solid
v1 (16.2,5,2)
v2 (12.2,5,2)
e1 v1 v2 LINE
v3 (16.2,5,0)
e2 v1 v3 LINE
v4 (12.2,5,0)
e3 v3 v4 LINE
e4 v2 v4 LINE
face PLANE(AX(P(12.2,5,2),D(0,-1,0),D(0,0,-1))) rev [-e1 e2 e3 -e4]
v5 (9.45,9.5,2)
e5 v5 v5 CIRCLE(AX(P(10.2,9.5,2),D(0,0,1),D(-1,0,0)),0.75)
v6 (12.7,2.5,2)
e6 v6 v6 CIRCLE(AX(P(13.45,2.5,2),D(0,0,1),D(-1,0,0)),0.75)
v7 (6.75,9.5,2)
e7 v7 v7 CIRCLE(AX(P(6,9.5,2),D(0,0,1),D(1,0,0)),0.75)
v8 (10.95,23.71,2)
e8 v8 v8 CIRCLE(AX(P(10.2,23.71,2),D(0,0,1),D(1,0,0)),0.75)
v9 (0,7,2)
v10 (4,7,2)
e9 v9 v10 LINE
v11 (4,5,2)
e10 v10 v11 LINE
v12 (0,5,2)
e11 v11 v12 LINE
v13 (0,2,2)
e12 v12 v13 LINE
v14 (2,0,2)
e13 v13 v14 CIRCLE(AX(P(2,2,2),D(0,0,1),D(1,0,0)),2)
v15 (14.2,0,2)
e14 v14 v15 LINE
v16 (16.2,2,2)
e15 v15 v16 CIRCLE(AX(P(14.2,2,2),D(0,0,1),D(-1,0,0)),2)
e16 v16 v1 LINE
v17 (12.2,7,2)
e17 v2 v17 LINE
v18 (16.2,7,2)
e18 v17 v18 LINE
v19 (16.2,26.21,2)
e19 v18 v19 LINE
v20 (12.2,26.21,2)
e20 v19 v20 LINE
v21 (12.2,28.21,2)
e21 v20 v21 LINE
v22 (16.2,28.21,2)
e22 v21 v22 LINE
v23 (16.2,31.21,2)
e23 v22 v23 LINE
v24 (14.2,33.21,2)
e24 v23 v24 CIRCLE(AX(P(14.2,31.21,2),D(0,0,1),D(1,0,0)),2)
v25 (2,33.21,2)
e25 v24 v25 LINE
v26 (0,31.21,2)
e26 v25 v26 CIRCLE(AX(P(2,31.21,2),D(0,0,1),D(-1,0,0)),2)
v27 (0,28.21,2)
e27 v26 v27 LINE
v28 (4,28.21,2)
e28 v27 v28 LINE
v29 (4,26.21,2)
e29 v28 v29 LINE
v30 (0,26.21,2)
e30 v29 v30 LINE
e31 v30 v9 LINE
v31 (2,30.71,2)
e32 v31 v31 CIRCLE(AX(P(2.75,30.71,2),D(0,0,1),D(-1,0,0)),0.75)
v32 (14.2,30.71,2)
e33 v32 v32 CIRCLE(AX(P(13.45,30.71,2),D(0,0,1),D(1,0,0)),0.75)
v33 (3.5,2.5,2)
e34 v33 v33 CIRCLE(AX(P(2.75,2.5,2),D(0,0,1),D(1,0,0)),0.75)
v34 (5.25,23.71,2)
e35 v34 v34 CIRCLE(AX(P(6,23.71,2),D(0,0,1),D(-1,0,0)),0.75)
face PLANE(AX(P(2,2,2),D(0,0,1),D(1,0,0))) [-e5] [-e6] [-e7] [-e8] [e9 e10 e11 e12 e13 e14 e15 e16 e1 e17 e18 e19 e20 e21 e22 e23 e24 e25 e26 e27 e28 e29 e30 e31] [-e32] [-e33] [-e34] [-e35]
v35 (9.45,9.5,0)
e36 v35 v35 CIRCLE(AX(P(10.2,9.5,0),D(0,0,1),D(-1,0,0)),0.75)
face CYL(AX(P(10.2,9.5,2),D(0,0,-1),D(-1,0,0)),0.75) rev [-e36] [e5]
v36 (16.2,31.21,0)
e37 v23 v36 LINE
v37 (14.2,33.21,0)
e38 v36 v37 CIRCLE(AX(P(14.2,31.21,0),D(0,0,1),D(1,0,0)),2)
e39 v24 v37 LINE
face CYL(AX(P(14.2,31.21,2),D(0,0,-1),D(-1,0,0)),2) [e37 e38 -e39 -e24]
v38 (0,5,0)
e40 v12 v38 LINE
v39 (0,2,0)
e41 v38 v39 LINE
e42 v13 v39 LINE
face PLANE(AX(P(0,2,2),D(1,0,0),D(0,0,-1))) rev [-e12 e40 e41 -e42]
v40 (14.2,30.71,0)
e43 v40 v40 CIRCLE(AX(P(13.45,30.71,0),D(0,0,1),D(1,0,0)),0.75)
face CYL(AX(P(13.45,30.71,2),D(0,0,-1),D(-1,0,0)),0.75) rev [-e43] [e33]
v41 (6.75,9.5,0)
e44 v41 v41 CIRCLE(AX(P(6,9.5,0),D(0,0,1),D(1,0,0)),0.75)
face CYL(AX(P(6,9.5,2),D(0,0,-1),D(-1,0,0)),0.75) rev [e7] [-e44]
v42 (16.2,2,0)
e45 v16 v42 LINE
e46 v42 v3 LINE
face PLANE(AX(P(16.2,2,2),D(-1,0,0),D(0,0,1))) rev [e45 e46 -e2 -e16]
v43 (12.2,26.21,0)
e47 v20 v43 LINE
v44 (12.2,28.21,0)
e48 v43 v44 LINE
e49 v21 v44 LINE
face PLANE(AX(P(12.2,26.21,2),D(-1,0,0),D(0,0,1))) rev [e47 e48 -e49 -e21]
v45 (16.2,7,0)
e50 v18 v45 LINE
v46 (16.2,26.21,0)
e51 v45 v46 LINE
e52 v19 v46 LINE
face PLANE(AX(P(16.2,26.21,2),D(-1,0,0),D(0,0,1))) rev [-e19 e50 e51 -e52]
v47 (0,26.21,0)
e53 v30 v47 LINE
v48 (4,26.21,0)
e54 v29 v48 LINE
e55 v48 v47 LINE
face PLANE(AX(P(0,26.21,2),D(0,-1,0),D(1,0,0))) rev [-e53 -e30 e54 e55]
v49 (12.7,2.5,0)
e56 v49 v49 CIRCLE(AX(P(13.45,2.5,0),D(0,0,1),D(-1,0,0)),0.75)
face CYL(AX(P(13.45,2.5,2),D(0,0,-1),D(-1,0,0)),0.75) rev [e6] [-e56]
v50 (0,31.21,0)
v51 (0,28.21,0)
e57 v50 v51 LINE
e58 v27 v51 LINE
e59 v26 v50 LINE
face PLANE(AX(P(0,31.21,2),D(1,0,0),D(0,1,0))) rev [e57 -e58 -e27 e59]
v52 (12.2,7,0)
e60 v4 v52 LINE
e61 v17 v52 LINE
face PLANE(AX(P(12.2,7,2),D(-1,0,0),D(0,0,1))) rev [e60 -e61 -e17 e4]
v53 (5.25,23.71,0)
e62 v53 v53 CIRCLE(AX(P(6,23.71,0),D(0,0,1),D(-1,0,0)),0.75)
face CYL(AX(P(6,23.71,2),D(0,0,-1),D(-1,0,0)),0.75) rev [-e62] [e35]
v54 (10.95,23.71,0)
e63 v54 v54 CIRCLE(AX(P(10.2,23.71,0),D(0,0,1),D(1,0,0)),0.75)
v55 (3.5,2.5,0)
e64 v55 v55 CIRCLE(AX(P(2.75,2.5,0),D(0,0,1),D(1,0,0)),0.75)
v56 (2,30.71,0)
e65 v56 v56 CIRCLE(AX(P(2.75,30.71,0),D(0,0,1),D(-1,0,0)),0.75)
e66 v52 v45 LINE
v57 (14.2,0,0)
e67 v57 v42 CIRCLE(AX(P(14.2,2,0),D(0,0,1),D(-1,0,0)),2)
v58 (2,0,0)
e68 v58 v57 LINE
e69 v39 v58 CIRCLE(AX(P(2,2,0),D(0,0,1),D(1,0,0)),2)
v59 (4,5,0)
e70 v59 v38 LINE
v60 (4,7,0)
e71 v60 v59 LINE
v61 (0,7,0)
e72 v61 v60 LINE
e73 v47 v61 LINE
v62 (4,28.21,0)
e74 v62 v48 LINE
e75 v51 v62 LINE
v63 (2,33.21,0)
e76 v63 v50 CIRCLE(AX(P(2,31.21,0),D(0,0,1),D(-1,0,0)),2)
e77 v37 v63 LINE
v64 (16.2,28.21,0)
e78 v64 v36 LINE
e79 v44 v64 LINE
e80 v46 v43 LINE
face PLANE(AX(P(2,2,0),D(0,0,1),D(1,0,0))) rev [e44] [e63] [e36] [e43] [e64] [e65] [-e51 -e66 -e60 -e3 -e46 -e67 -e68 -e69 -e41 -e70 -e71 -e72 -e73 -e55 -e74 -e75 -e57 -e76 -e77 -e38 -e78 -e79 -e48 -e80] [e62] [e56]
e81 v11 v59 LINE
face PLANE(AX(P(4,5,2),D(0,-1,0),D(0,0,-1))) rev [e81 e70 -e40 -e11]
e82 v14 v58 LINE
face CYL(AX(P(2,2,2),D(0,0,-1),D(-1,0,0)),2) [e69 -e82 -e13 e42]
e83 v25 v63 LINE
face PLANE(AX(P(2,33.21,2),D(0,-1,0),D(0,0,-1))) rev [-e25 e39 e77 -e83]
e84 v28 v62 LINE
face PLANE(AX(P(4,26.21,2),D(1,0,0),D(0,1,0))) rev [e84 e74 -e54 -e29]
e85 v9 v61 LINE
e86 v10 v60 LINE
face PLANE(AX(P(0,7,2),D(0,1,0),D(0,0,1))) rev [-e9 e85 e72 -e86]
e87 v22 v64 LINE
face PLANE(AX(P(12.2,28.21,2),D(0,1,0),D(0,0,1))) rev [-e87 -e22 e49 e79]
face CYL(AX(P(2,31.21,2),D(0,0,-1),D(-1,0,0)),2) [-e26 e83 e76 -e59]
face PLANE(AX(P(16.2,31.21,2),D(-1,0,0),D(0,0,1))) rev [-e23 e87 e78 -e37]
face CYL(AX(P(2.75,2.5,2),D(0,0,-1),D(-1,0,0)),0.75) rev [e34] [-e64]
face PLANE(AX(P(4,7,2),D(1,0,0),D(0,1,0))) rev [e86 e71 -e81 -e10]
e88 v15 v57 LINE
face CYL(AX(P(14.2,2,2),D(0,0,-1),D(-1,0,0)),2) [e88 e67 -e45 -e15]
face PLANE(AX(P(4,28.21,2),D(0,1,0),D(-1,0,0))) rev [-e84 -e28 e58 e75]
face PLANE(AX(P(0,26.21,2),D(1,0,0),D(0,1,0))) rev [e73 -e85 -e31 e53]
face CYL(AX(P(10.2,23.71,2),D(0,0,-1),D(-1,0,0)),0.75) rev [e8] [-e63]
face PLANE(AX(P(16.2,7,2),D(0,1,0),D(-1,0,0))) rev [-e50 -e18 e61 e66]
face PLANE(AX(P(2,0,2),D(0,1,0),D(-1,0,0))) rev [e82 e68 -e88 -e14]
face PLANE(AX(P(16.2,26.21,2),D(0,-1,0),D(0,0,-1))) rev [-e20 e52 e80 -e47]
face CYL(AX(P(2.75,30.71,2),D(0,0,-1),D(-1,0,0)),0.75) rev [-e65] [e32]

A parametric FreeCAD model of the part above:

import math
import FreeCAD as App
import Part
import Sketcher

doc = App.newDocument("Part")
body = doc.addObject("PartDesign::Body", "Body")

sketch1 = doc.addObject("Sketcher::SketchObject", "Sketch")
body.addObject(sketch1)
sketch1.AttachmentSupport = (doc.XY_Plane, [""])
sketch1.MapMode = "FlatFace"
sketch1.addGeometry(Part.LineSegment(App.Vector(0, 26.21, 0), App.Vector(0, 7, 0)), False)
sketch1.addGeometry(Part.LineSegment(App.Vector(0, 7, 0), App.Vector(4, 7, 0)), False)
sketch1.addGeometry(Part.LineSegment(App.Vector(4, 7, 0), App.Vector(4, 5, 0)), False)
sketch1.addGeometry(Part.LineSegment(App.Vector(4, 5, 0), App.Vector(0, 5, 0)), False)
sketch1.addGeometry(Part.LineSegment(App.Vector(0, 5, 0), App.Vector(0, 2, 0)), False)
sketch1.addGeometry(Part.ArcOfCircle(Part.Circle(App.Vector(2, 2, 0), App.Vector(0, 0, 1), 2), math.radians(-180), math.radians(-90)), False)
sketch1.addGeometry(Part.LineSegment(App.Vector(2, 0, 0), App.Vector(14.2, 0, 0)), False)
sketch1.addGeometry(Part.ArcOfCircle(Part.Circle(App.Vector(14.2, 2, 0), App.Vector(0, 0, 1), 2), math.radians(-90), math.radians(0)), False)
sketch1.addGeometry(Part.LineSegment(App.Vector(16.2, 2, 0), App.Vector(16.2, 5, 0)), False)
sketch1.addGeometry(Part.LineSegment(App.Vector(16.2, 5, 0), App.Vector(12.2, 5, 0)), False)
sketch1.addGeometry(Part.LineSegment(App.Vector(12.2, 5, 0), App.Vector(12.2, 7, 0)), False)
sketch1.addGeometry(Part.LineSegment(App.Vector(12.2, 7, 0), App.Vector(16.2, 7, 0)), False)
sketch1.addGeometry(Part.LineSegment(App.Vector(16.2, 7, 0), App.Vector(16.2, 26.21, 0)), False)
sketch1.addGeometry(Part.LineSegment(App.Vector(16.2, 26.21, 0), App.Vector(12.2, 26.21, 0)), False)
sketch1.addGeometry(Part.LineSegment(App.Vector(12.2, 26.21, 0), App.Vector(12.2, 28.21, 0)), False)
sketch1.addGeometry(Part.LineSegment(App.Vector(12.2, 28.21, 0), App.Vector(16.2, 28.21, 0)), False)
sketch1.addGeometry(Part.LineSegment(App.Vector(16.2, 28.21, 0), App.Vector(16.2, 31.21, 0)), False)
sketch1.addGeometry(Part.ArcOfCircle(Part.Circle(App.Vector(14.2, 31.21, 0), App.Vector(0, 0, 1), 2), math.radians(0), math.radians(90)), False)
sketch1.addGeometry(Part.LineSegment(App.Vector(14.2, 33.21, 0), App.Vector(2, 33.21, 0)), False)
sketch1.addGeometry(Part.ArcOfCircle(Part.Circle(App.Vector(2, 31.21, 0), App.Vector(0, 0, 1), 2), math.radians(90), math.radians(180)), False)
sketch1.addGeometry(Part.LineSegment(App.Vector(0, 31.21, 0), App.Vector(0, 28.21, 0)), False)
sketch1.addGeometry(Part.LineSegment(App.Vector(0, 28.21, 0), App.Vector(4, 28.21, 0)), False)
sketch1.addGeometry(Part.LineSegment(App.Vector(4, 28.21, 0), App.Vector(4, 26.21, 0)), False)
sketch1.addGeometry(Part.LineSegment(App.Vector(4, 26.21, 0), App.Vector(0, 26.21, 0)), False)
sketch1.addGeometry(Part.Circle(App.Vector(2.75, 2.5, 0), App.Vector(0, 0, 1), 0.75), False)
sketch1.addGeometry(Part.Circle(App.Vector(6, 9.5, 0), App.Vector(0, 0, 1), 0.75), False)
sketch1.addGeometry(Part.Circle(App.Vector(13.45, 2.5, 0), App.Vector(0, 0, 1), 0.75), False)
sketch1.addGeometry(Part.Circle(App.Vector(10.2, 9.5, 0), App.Vector(0, 0, 1), 0.75), False)
sketch1.addGeometry(Part.Circle(App.Vector(6, 23.71, 0), App.Vector(0, 0, 1), 0.75), False)
sketch1.addGeometry(Part.Circle(App.Vector(2.75, 30.71, 0), App.Vector(0, 0, 1), 0.75), False)
sketch1.addGeometry(Part.Circle(App.Vector(10.2, 23.71, 0), App.Vector(0, 0, 1), 0.75), False)
sketch1.addGeometry(Part.Circle(App.Vector(13.45, 30.71, 0), App.Vector(0, 0, 1), 0.75), False)
sketch1.addConstraint(Sketcher.Constraint("Coincident", 0, 2, 1, 1))
sketch1.addConstraint(Sketcher.Constraint("Coincident", 1, 2, 2, 1))
sketch1.addConstraint(Sketcher.Constraint("Coincident", 2, 2, 3, 1))
sketch1.addConstraint(Sketcher.Constraint("Coincident", 3, 2, 4, 1))
sketch1.addConstraint(Sketcher.Constraint("Tangent", 4, 2, 5, 1))
sketch1.addConstraint(Sketcher.Constraint("Tangent", 5, 2, 6, 1))
sketch1.addConstraint(Sketcher.Constraint("Tangent", 6, 2, 7, 1))
sketch1.addConstraint(Sketcher.Constraint("Tangent", 7, 2, 8, 1))
sketch1.addConstraint(Sketcher.Constraint("Coincident", 8, 2, 9, 1))
sketch1.addConstraint(Sketcher.Constraint("Coincident", 9, 2, 10, 1))
sketch1.addConstraint(Sketcher.Constraint("Coincident", 10, 2, 11, 1))
sketch1.addConstraint(Sketcher.Constraint("Coincident", 11, 2, 12, 1))
sketch1.addConstraint(Sketcher.Constraint("Coincident", 12, 2, 13, 1))
sketch1.addConstraint(Sketcher.Constraint("Coincident", 13, 2, 14, 1))
sketch1.addConstraint(Sketcher.Constraint("Coincident", 14, 2, 15, 1))
sketch1.addConstraint(Sketcher.Constraint("Coincident", 15, 2, 16, 1))
sketch1.addConstraint(Sketcher.Constraint("Tangent", 16, 2, 17, 1))
sketch1.addConstraint(Sketcher.Constraint("Tangent", 17, 2, 18, 1))
sketch1.addConstraint(Sketcher.Constraint("Tangent", 18, 2, 19, 1))
sketch1.addConstraint(Sketcher.Constraint("Tangent", 19, 2, 20, 1))
sketch1.addConstraint(Sketcher.Constraint("Coincident", 20, 2, 21, 1))
sketch1.addConstraint(Sketcher.Constraint("Coincident", 21, 2, 22, 1))
sketch1.addConstraint(Sketcher.Constraint("Coincident", 22, 2, 23, 1))
sketch1.addConstraint(Sketcher.Constraint("Coincident", 23, 2, 0, 1))
sketch1.addConstraint(Sketcher.Constraint("Vertical", 0))
sketch1.addConstraint(Sketcher.Constraint("Horizontal", 1))
sketch1.addConstraint(Sketcher.Constraint("Vertical", 2))
sketch1.addConstraint(Sketcher.Constraint("Horizontal", 3))
sketch1.addConstraint(Sketcher.Constraint("Vertical", 4))
sketch1.addConstraint(Sketcher.Constraint("Horizontal", 6))
sketch1.addConstraint(Sketcher.Constraint("Vertical", 8))
sketch1.addConstraint(Sketcher.Constraint("Horizontal", 9))
sketch1.addConstraint(Sketcher.Constraint("Vertical", 10))
sketch1.addConstraint(Sketcher.Constraint("Horizontal", 11))
sketch1.addConstraint(Sketcher.Constraint("Vertical", 12))
sketch1.addConstraint(Sketcher.Constraint("Horizontal", 13))
sketch1.addConstraint(Sketcher.Constraint("Vertical", 14))
sketch1.addConstraint(Sketcher.Constraint("Horizontal", 15))
sketch1.addConstraint(Sketcher.Constraint("Vertical", 16))
sketch1.addConstraint(Sketcher.Constraint("Horizontal", 18))
sketch1.addConstraint(Sketcher.Constraint("Vertical", 20))
sketch1.addConstraint(Sketcher.Constraint("Horizontal", 21))
sketch1.addConstraint(Sketcher.Constraint("Vertical", 22))
sketch1.addConstraint(Sketcher.Constraint("Horizontal", 23))
sketch1.addConstraint(Sketcher.Constraint("Equal", 5, 7))
sketch1.addConstraint(Sketcher.Constraint("Equal", 7, 17))
sketch1.addConstraint(Sketcher.Constraint("Equal", 17, 19))
sketch1.addConstraint(Sketcher.Constraint("Equal", 24, 25))
sketch1.addConstraint(Sketcher.Constraint("Equal", 25, 26))
sketch1.addConstraint(Sketcher.Constraint("Equal", 26, 27))
sketch1.addConstraint(Sketcher.Constraint("Equal", 27, 28))
sketch1.addConstraint(Sketcher.Constraint("Equal", 28, 29))
sketch1.addConstraint(Sketcher.Constraint("Equal", 29, 30))
sketch1.addConstraint(Sketcher.Constraint("Equal", 30, 31))
sketch1.addConstraint(Sketcher.Constraint("PointOnObject", 0, 2, -2))
sketch1.addConstraint(Sketcher.Constraint("PointOnObject", 3, 2, -2))
sketch1.addConstraint(Sketcher.Constraint("PointOnObject", 5, 2, -1))
sketch1.addConstraint(Sketcher.Constraint("PointOnObject", 19, 2, -2))
sketch1.addConstraint(Sketcher.Constraint("Horizontal", 24, 3, 26, 3))
sketch1.addConstraint(Sketcher.Constraint("Horizontal", 25, 3, 27, 3))
sketch1.addConstraint(Sketcher.Constraint("Horizontal", 28, 3, 30, 3))
sketch1.addConstraint(Sketcher.Constraint("Horizontal", 29, 3, 31, 3))
sketch1.addConstraint(Sketcher.Constraint("Horizontal", 3, 2, 8, 2))
sketch1.addConstraint(Sketcher.Constraint("Horizontal", 1, 2, 10, 2))
sketch1.addConstraint(Sketcher.Constraint("Horizontal", 15, 2, 20, 2))
sketch1.addConstraint(Sketcher.Constraint("Horizontal", 13, 2, 22, 2))
sketch1.addConstraint(Sketcher.Constraint("Vertical", 7, 3, 17, 3))
sketch1.addConstraint(Sketcher.Constraint("Vertical", 25, 3, 28, 3))
sketch1.addConstraint(Sketcher.Constraint("Vertical", 24, 3, 29, 3))
sketch1.addConstraint(Sketcher.Constraint("Vertical", 27, 3, 30, 3))
sketch1.addConstraint(Sketcher.Constraint("Vertical", 26, 3, 31, 3))
sketch1.addConstraint(Sketcher.Constraint("Vertical", 8, 2, 11, 2))
sketch1.addConstraint(Sketcher.Constraint("Vertical", 10, 2, 13, 2))
sketch1.addConstraint(Sketcher.Constraint("Vertical", 2, 2, 21, 2))
sketch1.addConstraint(Sketcher.Constraint("Equal", 3, 9))
sketch1.addConstraint(Sketcher.Constraint("Equal", 10, 14))
sketch1.addConstraint(Sketcher.Constraint("Equal", 8, 16))
sketch1.addConstraint(Sketcher.Constraint("Radius", 5, 2.0))
sketch1.addConstraint(Sketcher.Constraint("Diameter", 24, 1.5))
sketch1.addConstraint(Sketcher.Constraint("DistanceX", 1, 1, 1, 2, 4.0))
sketch1.addConstraint(Sketcher.Constraint("DistanceY", 2, 2, 2, 1, 2.0))
sketch1.addConstraint(Sketcher.Constraint("DistanceY", 4, 2, 4, 1, 3.0))
sketch1.addConstraint(Sketcher.Constraint("DistanceX", 6, 1, 6, 2, 12.2))
sketch1.addConstraint(Sketcher.Constraint("DistanceX", -1, 1, 25, 3, 6.0))
sketch1.addConstraint(Sketcher.Constraint("DistanceY", 24, 3, 25, 3, 7.0))
sketch1.addConstraint(Sketcher.Constraint("DistanceX", 27, 3, 7, 3, 4.0))
sketch1.addConstraint(Sketcher.Constraint("DistanceY", 28, 3, 29, 3, 7.0))
sketch1.addConstraint(Sketcher.Constraint("DistanceY", 0, 2, 0, 1, 19.21))
sketch1.addConstraint(Sketcher.Constraint("DistanceY", -1, 1, 24, 3, 2.5))
sketch1.addConstraint(Sketcher.Constraint("DistanceX", 24, 3, 26, 3, 10.7))
sketch1.addConstraint(Sketcher.Constraint("DistanceY", 28, 3, 19, 3, 7.5))
sketch1.addConstraint(Sketcher.Constraint("DistanceX", -1, 1, 24, 3, 2.75))
pad1 = doc.addObject("PartDesign::Pad", "Pad")
body.addObject(pad1)
pad1.Profile = sketch1
pad1.Length = 2

doc.recompute()
